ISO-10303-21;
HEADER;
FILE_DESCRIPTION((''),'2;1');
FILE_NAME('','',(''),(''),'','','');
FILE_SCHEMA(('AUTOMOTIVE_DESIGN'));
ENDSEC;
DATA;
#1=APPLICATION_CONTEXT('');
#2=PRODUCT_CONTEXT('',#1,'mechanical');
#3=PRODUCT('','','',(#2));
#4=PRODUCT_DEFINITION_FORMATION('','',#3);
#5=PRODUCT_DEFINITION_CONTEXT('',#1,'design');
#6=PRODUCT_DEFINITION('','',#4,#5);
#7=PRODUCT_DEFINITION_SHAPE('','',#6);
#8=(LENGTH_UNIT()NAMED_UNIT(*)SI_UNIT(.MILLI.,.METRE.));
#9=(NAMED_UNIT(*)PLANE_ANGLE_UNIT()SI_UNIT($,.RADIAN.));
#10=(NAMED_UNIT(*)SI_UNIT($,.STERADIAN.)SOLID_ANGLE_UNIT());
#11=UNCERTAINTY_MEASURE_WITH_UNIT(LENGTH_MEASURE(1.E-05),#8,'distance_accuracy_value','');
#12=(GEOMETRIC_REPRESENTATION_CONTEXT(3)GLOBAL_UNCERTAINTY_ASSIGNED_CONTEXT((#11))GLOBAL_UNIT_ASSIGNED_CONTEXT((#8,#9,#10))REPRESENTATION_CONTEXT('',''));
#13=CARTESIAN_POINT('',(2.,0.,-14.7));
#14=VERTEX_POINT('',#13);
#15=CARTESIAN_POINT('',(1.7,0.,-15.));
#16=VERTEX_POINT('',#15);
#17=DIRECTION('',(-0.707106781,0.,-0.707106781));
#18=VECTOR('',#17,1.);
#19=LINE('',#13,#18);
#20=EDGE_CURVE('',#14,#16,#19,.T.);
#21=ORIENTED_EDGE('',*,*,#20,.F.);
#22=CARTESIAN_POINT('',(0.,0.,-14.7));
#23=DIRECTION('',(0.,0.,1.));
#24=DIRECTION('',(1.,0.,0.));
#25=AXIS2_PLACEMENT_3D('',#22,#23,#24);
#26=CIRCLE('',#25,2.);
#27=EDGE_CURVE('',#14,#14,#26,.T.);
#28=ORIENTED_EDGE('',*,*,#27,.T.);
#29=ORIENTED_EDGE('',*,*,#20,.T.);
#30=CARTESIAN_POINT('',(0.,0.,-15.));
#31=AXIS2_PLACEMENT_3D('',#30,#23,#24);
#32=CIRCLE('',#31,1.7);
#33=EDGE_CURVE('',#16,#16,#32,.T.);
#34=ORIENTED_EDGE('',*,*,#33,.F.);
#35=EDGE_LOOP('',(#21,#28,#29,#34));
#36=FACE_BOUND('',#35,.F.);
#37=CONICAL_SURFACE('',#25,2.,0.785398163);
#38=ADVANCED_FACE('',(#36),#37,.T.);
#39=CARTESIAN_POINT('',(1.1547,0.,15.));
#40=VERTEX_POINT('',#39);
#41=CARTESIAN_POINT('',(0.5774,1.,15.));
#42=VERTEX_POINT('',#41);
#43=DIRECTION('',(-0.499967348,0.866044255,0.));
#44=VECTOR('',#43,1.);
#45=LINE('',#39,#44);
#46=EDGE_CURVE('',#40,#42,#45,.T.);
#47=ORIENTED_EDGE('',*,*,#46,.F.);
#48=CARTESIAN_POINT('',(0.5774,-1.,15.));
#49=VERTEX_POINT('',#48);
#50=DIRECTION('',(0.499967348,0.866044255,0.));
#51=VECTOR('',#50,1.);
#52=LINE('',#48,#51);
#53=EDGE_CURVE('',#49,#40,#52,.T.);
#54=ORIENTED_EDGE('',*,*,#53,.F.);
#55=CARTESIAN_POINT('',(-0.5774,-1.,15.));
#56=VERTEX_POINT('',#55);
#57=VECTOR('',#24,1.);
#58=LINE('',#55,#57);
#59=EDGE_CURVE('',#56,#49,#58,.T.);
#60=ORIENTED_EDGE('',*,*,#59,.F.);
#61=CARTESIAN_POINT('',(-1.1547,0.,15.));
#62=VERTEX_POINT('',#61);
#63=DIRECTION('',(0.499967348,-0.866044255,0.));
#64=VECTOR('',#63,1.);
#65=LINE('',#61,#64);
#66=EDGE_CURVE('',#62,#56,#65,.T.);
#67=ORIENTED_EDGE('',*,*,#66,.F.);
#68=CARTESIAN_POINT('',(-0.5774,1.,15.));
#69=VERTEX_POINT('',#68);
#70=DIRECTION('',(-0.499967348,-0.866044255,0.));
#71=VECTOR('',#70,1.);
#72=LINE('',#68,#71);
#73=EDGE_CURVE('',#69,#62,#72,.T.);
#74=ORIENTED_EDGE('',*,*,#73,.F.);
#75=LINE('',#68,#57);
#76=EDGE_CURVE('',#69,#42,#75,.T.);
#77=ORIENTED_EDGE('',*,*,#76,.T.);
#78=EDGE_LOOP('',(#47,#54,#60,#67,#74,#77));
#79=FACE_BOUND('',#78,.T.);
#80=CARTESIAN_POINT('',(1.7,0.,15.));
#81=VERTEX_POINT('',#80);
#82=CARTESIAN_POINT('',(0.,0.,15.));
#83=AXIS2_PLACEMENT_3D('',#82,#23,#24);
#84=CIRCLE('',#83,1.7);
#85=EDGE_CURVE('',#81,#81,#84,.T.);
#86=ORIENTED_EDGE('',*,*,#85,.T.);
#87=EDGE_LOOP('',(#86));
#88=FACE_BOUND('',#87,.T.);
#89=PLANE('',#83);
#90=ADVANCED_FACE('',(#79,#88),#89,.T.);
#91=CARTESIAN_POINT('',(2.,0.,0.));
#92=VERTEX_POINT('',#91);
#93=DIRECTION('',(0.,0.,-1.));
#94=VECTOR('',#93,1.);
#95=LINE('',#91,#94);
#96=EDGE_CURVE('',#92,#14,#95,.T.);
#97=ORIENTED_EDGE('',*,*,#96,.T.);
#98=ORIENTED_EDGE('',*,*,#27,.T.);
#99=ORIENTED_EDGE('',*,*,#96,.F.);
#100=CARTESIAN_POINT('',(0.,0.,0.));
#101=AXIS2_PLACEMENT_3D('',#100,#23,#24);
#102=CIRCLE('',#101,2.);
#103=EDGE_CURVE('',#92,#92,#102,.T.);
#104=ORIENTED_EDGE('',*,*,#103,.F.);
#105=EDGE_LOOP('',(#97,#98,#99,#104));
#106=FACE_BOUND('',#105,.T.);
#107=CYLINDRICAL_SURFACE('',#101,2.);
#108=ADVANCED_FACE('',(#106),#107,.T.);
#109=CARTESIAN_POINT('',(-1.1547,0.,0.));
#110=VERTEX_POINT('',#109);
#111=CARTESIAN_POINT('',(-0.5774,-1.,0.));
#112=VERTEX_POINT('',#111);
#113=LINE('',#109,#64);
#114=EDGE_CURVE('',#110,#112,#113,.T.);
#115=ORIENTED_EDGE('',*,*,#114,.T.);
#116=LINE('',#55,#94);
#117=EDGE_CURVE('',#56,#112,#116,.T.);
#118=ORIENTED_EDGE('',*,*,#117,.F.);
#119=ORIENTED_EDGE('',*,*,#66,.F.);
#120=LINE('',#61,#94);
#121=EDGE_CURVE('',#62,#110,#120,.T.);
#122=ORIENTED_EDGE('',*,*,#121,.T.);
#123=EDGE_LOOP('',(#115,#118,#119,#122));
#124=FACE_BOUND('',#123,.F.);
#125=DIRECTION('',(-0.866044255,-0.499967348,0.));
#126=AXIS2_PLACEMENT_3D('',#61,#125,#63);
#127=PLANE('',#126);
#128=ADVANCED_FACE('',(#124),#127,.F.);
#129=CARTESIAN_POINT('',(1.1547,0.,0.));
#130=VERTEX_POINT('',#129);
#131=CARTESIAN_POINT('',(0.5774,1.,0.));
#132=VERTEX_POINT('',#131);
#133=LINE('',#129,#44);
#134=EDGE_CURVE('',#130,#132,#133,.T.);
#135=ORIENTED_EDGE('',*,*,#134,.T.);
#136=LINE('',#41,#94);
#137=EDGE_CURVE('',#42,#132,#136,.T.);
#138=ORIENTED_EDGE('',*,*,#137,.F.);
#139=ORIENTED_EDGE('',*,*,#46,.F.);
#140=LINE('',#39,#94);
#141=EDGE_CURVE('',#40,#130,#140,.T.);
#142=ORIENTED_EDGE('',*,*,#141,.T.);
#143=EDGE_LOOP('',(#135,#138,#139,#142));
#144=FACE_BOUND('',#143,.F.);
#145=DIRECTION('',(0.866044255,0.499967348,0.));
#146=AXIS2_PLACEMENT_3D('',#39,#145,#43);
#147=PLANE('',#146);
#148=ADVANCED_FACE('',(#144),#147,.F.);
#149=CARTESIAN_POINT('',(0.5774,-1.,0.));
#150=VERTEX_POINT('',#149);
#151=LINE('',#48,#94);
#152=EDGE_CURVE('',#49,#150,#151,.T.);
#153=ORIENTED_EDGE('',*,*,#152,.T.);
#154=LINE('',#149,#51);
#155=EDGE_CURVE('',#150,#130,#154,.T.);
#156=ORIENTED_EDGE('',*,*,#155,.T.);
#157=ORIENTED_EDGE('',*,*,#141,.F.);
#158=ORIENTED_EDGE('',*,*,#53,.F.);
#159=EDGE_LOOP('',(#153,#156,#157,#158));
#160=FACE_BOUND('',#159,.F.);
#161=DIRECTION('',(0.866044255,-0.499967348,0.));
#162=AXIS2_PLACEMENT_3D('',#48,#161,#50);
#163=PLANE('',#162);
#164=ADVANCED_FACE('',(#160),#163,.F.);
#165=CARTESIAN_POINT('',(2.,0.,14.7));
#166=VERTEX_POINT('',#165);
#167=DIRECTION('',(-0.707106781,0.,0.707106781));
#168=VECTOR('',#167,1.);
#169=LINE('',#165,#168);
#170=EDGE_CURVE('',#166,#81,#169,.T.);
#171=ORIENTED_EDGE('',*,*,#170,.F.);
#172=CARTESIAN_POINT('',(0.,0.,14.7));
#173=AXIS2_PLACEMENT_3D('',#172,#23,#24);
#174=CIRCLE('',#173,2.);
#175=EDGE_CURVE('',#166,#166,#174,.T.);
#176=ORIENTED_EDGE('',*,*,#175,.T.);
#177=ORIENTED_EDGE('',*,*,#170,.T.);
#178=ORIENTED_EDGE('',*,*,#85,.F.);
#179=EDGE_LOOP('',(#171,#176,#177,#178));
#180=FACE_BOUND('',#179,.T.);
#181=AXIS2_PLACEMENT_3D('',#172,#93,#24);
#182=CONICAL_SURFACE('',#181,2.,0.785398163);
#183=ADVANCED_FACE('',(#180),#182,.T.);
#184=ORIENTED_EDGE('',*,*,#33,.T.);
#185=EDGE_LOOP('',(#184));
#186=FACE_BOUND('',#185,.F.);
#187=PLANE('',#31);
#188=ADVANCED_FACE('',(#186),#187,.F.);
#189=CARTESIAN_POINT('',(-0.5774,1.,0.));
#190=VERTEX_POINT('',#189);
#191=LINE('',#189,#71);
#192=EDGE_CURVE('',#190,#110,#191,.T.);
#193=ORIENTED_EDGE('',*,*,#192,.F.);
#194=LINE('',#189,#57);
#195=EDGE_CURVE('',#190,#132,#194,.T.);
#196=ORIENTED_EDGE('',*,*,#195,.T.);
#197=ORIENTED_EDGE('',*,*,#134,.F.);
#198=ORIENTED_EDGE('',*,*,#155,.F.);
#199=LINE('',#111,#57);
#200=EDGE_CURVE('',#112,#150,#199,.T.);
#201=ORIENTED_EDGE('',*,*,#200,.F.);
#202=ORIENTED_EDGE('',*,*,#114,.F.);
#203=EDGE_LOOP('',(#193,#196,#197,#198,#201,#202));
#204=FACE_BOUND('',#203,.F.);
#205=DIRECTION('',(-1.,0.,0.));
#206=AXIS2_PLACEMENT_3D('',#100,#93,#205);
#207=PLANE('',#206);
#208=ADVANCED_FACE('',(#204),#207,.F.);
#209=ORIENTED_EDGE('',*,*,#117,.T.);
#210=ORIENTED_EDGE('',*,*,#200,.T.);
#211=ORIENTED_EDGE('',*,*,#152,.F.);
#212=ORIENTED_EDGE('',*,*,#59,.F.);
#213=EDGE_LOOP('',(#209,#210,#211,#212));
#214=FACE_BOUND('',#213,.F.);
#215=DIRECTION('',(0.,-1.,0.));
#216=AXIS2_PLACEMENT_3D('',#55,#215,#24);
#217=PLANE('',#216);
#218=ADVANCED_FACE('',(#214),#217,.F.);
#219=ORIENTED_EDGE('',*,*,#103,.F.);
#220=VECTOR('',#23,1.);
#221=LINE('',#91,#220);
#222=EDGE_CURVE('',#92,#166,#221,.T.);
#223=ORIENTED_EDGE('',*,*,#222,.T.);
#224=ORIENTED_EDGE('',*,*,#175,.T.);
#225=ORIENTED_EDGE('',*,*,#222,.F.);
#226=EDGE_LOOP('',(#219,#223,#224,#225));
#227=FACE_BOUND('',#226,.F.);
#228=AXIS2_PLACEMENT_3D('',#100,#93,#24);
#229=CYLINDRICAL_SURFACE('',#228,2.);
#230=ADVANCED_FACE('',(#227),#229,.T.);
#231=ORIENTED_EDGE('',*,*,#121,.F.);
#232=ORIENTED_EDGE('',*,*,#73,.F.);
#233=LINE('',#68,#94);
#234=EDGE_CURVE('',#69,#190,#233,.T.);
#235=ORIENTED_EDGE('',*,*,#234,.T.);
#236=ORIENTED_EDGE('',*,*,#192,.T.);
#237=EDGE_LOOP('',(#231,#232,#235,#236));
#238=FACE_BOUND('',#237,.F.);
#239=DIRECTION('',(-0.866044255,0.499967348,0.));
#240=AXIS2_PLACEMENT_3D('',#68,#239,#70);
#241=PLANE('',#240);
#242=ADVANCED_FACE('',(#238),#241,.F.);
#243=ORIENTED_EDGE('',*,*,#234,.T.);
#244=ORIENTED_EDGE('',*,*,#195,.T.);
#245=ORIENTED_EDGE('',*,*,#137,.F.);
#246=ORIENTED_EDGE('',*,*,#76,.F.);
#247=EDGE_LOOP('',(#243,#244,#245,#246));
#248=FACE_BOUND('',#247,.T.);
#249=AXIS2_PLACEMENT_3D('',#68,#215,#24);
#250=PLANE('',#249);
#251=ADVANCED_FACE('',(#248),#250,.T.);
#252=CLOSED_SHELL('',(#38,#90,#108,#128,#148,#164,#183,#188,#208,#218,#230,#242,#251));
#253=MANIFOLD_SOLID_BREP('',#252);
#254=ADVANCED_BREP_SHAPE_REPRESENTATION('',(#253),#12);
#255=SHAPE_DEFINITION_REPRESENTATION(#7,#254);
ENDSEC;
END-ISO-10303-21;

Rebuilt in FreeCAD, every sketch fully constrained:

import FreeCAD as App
import Part
import Sketcher

V = App.Vector


def edges_at(feature, points):
    """Names of the edges that pass closest to the given points."""
    edges = feature.Shape.Edges
    near = lambda p: min(range(len(edges)), key=lambda i: edges[i].distToShape(Part.Vertex(*p))[0])
    return sorted({f"Edge{near(p) + 1}" for p in points})

doc = App.newDocument("Part")
body = doc.addObject("PartDesign::Body", "Body")

# Sketch on XY plane
sketch1 = doc.addObject("Sketcher::SketchObject", "Sketch")
body.addObject(sketch1)
sketch1.AttachmentSupport = (doc.XY_Plane, [""])
sketch1.MapMode = "FlatFace"
sketch1.addGeometry(Part.Circle(V(0, 0, 0), V(0, 0, 1), 2), False)
sketch1.addConstraint(Sketcher.Constraint("Coincident", 0, 3, -1, 1))
sketch1.addConstraint(Sketcher.Constraint("Diameter", 0, 4.0))
pad1 = doc.addObject("PartDesign::Pad", "Pad")
body.addObject(pad1)
pad1.Profile = sketch1
pad1.Length = 30
pad1.Midplane = True
doc.recompute()

chamfer = doc.addObject("PartDesign::Chamfer", "Chamfer")
body.addObject(chamfer)
chamfer.Base = (pad1, edges_at(pad1, [(-2, 0, -15), (-2, 0, 15)]))
chamfer.Size = 0.3

# Sketch on XY plane
sketch2 = doc.addObject("Sketcher::SketchObject", "Sketch001")
body.addObject(sketch2)
sketch2.AttachmentSupport = (doc.XY_Plane, [""])
sketch2.MapMode = "FlatFace"
sketch2.AttachmentOffset = App.Placement(V(0, 0, 15), App.Rotation())
sketch2.addGeometry(Part.LineSegment(V(0.6, 1, 0), V(-0.6, 1, 0)), False)
sketch2.addGeometry(Part.LineSegment(V(-0.6, 1, 0), V(-1.2, 0, 0)), False)
sketch2.addGeometry(Part.LineSegment(V(-1.2, 0, 0), V(-0.6, -1, 0)), False)
sketch2.addGeometry(Part.LineSegment(V(-0.6, -1, 0), V(0.6, -1, 0)), False)
sketch2.addGeometry(Part.LineSegment(V(0.6, -1, 0), V(1.2, 0, 0)), False)
sketch2.addGeometry(Part.LineSegment(V(1.2, 0, 0), V(0.6, 1, 0)), False)
sketch2.addConstraint(Sketcher.Constraint("Coincident", 0, 2, 1, 1))
sketch2.addConstraint(Sketcher.Constraint("Coincident", 1, 2, 2, 1))
sketch2.addConstraint(Sketcher.Constraint("Coincident", 2, 2, 3, 1))
sketch2.addConstraint(Sketcher.Constraint("Coincident", 3, 2, 4, 1))
sketch2.addConstraint(Sketcher.Constraint("Coincident", 4, 2, 5, 1))
sketch2.addConstraint(Sketcher.Constraint("Coincident", 5, 2, 0, 1))
sketch2.addConstraint(Sketcher.Constraint("Horizontal", 0))
sketch2.addConstraint(Sketcher.Constraint("Horizontal", 3))
sketch2.addConstraint(Sketcher.Constraint("Symmetric", 0, 2, 3, 2, -1, 1))
sketch2.addConstraint(Sketcher.Constraint("Symmetric", 1, 2, 4, 2, -1, 1))
sketch2.addConstraint(Sketcher.Constraint("PointOnObject", 1, 2, -1))
sketch2.addConstraint(Sketcher.Constraint("Parallel", 2, 5))
sketch2.addConstraint(Sketcher.Constraint("Vertical", 0, 2, 2, 2))
sketch2.addConstraint(Sketcher.Constraint("DistanceY", -1, 1, 0, 2, 1.0))
sketch2.addConstraint(Sketcher.Constraint("DistanceX", 0, 2, 0, 1, 1.1548))
sketch2.addConstraint(Sketcher.Constraint("DistanceX", 1, 2, 3, 2, 1.732))
pocket1 = doc.addObject("PartDesign::Pocket", "Pocket")
body.addObject(pocket1)
pocket1.Profile = sketch2
pocket1.Length = 15

doc.recompute()
